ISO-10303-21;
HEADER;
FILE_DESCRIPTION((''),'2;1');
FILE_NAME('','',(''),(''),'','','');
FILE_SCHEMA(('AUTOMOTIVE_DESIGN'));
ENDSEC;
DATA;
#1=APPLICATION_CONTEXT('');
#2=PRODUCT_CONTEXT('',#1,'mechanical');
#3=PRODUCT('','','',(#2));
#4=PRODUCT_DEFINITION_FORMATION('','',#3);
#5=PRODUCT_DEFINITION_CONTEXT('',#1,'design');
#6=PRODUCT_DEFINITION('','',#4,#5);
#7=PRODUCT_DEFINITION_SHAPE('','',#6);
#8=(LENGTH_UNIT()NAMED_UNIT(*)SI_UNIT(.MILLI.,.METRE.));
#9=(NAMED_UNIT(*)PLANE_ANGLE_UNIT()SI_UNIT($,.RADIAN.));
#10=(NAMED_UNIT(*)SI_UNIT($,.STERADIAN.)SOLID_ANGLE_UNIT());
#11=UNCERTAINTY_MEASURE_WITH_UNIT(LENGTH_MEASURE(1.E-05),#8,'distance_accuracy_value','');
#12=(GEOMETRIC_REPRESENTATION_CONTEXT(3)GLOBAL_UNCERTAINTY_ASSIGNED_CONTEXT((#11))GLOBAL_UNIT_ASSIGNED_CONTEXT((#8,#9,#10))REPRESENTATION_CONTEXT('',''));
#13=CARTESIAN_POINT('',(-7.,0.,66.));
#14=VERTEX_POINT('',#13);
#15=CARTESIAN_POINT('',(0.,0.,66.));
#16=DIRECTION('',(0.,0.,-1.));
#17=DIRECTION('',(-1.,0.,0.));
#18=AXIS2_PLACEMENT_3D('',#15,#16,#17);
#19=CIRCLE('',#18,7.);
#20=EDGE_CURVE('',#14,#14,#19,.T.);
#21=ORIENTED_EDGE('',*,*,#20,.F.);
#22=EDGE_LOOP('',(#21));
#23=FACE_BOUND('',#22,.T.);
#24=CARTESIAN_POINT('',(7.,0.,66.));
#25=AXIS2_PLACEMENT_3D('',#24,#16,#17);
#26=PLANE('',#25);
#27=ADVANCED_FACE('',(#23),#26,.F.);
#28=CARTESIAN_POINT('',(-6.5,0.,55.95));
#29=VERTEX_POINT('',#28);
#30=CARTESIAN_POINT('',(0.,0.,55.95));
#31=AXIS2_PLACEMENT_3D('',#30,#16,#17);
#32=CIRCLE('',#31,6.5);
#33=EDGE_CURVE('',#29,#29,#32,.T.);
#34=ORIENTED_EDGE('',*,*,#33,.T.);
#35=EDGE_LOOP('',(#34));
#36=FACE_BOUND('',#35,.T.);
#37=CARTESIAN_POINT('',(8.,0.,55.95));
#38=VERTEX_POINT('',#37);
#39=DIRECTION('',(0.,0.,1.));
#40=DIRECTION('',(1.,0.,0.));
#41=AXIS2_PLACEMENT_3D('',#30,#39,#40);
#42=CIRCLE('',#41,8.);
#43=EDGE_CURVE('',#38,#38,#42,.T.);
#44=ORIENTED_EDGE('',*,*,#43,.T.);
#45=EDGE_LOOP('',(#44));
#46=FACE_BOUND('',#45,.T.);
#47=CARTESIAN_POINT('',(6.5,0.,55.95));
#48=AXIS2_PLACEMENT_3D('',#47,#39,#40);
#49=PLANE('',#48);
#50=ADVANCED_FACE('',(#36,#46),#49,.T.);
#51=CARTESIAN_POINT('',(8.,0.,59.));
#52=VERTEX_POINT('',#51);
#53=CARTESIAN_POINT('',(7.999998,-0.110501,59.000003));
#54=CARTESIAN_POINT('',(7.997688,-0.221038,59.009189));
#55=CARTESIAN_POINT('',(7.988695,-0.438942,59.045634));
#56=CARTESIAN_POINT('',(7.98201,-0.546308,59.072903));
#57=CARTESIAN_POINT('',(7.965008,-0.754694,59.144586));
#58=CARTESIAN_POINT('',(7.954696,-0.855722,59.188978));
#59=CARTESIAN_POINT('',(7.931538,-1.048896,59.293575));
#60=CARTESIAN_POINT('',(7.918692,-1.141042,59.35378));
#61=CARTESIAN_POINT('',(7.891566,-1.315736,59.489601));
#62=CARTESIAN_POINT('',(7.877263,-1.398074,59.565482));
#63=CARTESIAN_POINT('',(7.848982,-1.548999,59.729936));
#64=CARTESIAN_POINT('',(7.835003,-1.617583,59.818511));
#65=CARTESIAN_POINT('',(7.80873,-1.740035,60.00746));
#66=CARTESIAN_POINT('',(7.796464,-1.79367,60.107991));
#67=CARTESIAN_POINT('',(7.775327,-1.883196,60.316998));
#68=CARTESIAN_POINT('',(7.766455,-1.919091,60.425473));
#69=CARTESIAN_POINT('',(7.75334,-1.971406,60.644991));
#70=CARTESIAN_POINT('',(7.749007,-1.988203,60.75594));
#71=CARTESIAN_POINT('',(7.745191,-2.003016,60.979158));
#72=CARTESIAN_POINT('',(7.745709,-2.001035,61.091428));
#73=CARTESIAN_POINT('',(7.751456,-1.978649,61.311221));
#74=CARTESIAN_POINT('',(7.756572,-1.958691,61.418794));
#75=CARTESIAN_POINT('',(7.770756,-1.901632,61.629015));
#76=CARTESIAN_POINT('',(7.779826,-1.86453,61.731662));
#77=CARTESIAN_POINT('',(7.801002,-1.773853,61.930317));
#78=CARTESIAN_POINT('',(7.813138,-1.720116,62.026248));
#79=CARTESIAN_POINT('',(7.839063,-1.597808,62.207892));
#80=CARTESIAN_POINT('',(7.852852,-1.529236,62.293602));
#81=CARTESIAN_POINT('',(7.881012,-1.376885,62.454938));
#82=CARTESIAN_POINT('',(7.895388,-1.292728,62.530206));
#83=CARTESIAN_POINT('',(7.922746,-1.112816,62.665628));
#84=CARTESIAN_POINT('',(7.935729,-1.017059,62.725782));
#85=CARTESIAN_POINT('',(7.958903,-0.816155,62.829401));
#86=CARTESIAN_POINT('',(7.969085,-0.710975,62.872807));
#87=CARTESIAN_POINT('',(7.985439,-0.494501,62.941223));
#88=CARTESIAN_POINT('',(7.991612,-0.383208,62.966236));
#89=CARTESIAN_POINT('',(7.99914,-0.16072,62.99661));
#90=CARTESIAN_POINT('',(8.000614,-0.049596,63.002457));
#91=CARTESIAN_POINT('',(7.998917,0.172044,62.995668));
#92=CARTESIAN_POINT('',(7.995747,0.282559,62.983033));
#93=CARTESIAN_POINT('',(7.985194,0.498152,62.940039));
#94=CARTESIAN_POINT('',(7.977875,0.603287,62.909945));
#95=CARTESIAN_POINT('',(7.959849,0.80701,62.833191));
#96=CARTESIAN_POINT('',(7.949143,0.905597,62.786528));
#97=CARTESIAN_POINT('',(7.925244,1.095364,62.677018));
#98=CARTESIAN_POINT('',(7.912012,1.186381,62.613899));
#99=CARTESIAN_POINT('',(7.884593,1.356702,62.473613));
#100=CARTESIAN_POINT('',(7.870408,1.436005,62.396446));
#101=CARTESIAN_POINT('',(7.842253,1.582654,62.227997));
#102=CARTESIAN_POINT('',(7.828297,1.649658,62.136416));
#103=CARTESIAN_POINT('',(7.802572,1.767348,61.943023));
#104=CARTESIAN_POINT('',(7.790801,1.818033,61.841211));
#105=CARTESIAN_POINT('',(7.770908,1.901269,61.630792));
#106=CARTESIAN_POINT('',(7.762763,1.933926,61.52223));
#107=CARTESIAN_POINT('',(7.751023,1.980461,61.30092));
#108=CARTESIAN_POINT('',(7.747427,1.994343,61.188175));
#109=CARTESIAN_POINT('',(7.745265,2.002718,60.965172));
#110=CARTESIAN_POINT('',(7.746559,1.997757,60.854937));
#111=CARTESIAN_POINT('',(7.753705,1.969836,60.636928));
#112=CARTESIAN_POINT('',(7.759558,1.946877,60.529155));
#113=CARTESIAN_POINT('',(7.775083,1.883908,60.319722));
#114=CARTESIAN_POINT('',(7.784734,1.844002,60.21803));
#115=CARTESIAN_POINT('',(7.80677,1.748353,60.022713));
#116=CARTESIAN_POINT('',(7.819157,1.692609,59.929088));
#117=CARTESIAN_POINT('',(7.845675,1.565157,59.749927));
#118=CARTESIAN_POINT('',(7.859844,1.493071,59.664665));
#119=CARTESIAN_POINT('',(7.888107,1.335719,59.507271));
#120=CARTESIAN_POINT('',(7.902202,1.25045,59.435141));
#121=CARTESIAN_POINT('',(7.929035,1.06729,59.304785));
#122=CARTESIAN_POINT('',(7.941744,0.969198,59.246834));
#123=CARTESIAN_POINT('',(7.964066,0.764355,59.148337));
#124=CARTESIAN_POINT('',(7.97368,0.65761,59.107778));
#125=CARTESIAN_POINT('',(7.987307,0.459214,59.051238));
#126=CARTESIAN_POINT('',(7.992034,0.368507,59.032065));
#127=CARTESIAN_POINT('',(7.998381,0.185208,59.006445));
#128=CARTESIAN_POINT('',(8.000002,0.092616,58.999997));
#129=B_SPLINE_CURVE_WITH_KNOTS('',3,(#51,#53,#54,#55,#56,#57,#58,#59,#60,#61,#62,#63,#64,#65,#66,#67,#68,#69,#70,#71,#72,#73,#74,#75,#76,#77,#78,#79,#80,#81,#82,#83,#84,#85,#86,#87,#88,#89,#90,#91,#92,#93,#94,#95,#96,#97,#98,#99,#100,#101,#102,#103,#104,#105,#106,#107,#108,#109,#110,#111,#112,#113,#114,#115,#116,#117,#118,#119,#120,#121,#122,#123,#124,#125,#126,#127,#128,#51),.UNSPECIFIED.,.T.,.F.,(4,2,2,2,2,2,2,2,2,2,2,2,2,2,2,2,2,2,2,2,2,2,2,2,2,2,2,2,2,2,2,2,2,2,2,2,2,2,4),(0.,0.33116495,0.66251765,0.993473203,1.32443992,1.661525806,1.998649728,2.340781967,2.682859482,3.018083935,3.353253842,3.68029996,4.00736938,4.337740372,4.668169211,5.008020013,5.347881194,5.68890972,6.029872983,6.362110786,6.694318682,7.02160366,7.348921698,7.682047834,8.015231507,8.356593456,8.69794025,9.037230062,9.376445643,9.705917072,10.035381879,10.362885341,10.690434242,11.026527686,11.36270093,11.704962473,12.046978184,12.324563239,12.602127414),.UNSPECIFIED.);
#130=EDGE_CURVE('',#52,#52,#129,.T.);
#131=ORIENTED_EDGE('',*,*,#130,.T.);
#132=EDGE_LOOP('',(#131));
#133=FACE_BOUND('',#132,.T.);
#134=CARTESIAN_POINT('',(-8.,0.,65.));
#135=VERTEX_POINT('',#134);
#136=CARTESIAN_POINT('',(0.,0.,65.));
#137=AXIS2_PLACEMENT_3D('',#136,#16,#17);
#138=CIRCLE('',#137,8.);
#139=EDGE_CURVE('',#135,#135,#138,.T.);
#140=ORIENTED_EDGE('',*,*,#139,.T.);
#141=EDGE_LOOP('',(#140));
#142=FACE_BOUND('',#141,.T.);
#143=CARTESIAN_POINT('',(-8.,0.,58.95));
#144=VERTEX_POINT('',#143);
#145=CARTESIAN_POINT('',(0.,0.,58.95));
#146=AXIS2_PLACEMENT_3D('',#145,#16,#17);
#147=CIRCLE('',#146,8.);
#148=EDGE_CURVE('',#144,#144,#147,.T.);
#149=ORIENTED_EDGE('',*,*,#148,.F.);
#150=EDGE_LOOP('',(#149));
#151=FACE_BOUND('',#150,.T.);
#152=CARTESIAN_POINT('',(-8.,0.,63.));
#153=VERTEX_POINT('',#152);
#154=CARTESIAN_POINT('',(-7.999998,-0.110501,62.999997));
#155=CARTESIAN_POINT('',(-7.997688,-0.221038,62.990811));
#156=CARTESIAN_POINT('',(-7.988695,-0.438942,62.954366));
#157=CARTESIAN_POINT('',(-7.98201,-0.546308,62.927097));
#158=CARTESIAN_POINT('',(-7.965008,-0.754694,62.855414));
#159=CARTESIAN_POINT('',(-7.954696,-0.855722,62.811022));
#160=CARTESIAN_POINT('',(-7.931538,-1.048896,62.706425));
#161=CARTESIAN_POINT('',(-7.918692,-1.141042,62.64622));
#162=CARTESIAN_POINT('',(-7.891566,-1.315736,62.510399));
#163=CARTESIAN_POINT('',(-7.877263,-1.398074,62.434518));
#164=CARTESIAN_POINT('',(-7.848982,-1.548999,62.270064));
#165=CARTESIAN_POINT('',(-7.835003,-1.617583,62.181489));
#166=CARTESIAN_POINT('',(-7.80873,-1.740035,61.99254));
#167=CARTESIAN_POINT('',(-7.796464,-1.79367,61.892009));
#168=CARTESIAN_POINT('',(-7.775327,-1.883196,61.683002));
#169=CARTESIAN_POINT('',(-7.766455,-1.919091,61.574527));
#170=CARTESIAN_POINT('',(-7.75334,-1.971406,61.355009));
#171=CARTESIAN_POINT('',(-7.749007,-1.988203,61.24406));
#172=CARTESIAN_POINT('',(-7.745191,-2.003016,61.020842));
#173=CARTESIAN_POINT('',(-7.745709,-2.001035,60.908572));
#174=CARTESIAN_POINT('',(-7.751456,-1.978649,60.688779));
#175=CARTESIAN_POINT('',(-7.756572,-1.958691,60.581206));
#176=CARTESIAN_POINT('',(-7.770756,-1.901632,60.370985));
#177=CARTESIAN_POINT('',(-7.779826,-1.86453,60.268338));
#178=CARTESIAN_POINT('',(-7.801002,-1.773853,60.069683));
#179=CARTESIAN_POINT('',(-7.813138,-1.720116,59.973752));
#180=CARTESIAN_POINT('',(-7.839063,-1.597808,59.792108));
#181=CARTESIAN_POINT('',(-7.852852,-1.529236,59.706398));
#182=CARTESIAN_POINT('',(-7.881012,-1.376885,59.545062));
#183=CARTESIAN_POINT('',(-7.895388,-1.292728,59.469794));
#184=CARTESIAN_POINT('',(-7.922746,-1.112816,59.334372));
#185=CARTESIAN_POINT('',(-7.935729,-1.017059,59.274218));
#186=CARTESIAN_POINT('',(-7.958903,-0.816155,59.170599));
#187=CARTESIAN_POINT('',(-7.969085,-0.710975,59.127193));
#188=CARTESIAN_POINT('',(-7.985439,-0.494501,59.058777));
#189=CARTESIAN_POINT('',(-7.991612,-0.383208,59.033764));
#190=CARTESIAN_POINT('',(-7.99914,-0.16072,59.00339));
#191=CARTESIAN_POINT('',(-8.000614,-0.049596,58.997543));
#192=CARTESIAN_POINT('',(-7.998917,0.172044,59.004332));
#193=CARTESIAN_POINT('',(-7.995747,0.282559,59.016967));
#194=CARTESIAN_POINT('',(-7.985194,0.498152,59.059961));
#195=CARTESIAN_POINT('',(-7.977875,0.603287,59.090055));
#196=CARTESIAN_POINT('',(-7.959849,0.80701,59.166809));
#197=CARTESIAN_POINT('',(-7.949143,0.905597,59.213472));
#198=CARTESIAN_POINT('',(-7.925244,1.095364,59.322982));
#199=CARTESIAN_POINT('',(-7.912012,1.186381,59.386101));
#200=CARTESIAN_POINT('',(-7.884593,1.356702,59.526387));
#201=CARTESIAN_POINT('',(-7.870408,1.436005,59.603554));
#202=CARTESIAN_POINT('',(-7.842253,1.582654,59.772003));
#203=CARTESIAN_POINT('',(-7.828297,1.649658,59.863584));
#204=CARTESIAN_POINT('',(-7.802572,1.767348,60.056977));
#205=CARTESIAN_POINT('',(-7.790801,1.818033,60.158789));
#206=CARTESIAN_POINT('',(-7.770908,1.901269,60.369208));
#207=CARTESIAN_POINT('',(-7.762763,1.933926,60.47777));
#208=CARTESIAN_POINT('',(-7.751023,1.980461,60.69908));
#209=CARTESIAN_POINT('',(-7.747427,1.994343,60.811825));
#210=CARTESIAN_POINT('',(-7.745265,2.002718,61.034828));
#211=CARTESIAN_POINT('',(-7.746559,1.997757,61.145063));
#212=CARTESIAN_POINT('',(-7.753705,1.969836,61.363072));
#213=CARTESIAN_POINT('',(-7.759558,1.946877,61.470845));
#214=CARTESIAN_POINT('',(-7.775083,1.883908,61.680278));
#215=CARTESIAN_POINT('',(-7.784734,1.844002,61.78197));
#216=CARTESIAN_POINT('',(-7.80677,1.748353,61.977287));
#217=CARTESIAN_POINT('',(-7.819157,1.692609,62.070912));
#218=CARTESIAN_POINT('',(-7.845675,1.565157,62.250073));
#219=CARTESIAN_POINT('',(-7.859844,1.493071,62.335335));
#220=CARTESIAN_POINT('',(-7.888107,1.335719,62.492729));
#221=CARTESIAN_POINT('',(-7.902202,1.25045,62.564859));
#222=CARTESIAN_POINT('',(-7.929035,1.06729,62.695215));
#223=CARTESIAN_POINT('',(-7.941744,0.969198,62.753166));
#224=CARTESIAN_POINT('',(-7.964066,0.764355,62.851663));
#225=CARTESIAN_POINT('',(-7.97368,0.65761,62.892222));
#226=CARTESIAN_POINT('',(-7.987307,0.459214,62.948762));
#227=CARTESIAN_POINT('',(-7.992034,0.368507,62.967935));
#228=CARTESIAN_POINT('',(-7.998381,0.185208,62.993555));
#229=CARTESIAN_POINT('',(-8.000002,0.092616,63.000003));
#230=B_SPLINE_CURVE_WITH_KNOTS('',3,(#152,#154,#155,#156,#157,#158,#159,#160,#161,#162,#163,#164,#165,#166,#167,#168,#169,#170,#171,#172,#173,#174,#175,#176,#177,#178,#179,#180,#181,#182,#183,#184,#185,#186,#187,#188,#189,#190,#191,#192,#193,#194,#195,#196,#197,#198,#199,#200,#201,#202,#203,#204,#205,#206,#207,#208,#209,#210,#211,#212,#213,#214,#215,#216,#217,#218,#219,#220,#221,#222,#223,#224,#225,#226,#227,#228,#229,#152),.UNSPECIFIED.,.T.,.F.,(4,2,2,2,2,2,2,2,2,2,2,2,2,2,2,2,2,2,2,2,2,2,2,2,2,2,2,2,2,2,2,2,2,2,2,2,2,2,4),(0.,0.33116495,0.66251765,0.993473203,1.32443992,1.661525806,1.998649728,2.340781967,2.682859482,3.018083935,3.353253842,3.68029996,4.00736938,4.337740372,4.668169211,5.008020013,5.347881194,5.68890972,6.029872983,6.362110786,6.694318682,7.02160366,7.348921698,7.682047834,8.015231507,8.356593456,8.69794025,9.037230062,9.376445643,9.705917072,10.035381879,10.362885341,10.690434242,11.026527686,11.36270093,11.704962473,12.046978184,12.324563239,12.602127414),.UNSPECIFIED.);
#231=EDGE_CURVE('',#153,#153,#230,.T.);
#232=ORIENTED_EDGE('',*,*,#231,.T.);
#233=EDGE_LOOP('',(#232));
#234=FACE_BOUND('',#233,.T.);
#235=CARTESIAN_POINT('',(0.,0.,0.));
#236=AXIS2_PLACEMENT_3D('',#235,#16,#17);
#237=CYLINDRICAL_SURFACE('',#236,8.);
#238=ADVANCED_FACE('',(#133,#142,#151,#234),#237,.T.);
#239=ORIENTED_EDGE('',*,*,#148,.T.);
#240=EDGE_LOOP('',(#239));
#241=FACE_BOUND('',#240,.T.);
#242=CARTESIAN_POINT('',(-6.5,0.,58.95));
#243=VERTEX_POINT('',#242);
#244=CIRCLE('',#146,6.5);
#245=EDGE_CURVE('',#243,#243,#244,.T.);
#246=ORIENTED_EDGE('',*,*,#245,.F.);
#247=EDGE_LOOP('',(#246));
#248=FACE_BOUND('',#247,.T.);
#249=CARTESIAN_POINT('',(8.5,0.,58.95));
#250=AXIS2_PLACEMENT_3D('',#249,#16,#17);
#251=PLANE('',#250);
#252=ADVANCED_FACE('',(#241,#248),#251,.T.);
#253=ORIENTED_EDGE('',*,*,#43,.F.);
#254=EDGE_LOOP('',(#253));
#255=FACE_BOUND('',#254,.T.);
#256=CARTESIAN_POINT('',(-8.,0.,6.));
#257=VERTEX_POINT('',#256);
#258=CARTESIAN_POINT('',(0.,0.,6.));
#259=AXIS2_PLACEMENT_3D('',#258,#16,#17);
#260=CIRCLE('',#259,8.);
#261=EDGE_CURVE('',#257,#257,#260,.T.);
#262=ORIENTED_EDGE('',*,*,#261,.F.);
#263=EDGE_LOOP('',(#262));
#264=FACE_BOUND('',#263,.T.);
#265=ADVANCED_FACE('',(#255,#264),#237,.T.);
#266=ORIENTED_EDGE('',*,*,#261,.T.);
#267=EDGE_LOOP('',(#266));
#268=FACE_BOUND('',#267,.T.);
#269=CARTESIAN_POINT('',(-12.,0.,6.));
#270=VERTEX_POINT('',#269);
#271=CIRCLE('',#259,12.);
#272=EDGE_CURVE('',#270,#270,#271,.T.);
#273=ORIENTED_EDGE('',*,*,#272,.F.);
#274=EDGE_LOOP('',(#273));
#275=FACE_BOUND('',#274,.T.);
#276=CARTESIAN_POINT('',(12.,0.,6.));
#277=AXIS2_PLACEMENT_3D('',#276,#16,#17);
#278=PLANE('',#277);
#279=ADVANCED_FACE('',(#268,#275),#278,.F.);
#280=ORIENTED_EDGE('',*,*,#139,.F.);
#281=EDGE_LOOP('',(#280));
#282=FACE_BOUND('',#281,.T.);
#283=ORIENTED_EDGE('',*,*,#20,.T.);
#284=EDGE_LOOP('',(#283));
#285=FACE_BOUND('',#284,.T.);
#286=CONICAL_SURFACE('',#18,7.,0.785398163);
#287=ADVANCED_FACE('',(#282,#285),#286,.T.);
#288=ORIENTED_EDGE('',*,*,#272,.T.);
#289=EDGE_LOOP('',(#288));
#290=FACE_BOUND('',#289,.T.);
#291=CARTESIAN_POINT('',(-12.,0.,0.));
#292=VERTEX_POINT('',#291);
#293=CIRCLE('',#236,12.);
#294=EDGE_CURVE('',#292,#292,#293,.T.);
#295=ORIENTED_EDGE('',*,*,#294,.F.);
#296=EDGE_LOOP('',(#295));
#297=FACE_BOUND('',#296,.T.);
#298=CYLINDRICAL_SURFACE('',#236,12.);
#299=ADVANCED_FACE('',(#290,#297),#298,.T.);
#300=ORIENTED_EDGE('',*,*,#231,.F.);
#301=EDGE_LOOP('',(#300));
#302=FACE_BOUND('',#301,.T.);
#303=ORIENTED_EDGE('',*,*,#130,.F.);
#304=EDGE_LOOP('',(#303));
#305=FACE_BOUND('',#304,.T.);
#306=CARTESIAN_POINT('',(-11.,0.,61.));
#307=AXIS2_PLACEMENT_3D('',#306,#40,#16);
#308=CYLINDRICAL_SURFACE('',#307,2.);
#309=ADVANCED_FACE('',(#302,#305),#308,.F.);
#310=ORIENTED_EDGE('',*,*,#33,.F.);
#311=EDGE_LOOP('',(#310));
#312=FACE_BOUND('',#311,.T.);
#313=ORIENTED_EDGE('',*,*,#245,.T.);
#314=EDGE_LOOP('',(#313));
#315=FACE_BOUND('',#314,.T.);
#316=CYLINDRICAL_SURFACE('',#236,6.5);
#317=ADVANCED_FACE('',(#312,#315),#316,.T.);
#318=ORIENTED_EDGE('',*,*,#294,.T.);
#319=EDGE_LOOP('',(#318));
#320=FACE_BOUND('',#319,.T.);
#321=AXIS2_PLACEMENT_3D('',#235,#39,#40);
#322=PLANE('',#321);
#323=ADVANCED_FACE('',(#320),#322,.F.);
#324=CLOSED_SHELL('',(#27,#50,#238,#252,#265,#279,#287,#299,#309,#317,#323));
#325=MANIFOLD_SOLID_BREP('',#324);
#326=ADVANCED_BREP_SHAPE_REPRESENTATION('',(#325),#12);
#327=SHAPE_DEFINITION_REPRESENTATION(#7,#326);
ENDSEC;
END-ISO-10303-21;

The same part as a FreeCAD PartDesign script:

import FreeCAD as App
import Part
import Sketcher

V = App.Vector

doc = App.newDocument("Part")
body = doc.addObject("PartDesign::Body", "Body")

# Sketch on XZ plane
sketch1 = body.newObject("Sketcher::SketchObject", "Sketch")
sketch1.AttachmentSupport = (doc.getObject("XZ_Plane"), [""])
sketch1.MapMode = "FlatFace"
sketch1.addGeometry([
    Part.LineSegment(V(12, 0, 0), V(0, 0, 0)),  # 0
    Part.LineSegment(V(0, 0, 0), V(0, 66, 0)),  # 1
    Part.LineSegment(V(0, 66, 0), V(7, 66, 0)),  # 2
    Part.LineSegment(V(7, 66, 0), V(8, 65, 0)),  # 3
    Part.LineSegment(V(8, 65, 0), V(8, 6, 0)),  # 4
    Part.LineSegment(V(8, 6, 0), V(12, 6, 0)),  # 5
    Part.LineSegment(V(12, 6, 0), V(12, 0, 0)),  # 6
], False)
sketch1.addConstraint([
    Sketcher.Constraint("Coincident", 0, 2, 1, 1),
    Sketcher.Constraint("Coincident", 1, 2, 2, 1),
    Sketcher.Constraint("Coincident", 2, 2, 3, 1),
    Sketcher.Constraint("Coincident", 3, 2, 4, 1),
    Sketcher.Constraint("Coincident", 4, 2, 5, 1),
    Sketcher.Constraint("Coincident", 5, 2, 6, 1),
    Sketcher.Constraint("Coincident", 6, 2, 0, 1),
    Sketcher.Constraint("Horizontal", 0),
    Sketcher.Constraint("Vertical", 1),
    Sketcher.Constraint("Horizontal", 2),
    Sketcher.Constraint("Vertical", 4),
    Sketcher.Constraint("Horizontal", 5),
    Sketcher.Constraint("Vertical", 6),
    Sketcher.Constraint("Coincident", 0, 2, -1, 1),
    Sketcher.Constraint("DistanceX", 0, 2, 0, 1, 12.0),
    Sketcher.Constraint("DistanceX", 2, 1, 2, 2, 7.0),
    Sketcher.Constraint("DistanceX", 5, 1, 5, 2, 4.0),
    Sketcher.Constraint("DistanceY", 1, 1, 1, 2, 66.0),
    Sketcher.Constraint("DistanceY", 4, 2, 4, 1, 59.0),
    Sketcher.Constraint("DistanceY", 6, 2, 6, 1, 6.0),
])
revolution = body.newObject("PartDesign::Revolution", "Revolution")
revolution.Profile = sketch1
revolution.ReferenceAxis = (sketch1, ["V_Axis"])
revolution.Angle = 360

# Sketch on YZ plane
sketch2 = body.newObject("Sketcher::SketchObject", "Sketch001")
sketch2.AttachmentSupport = (doc.getObject("YZ_Plane"), [""])
sketch2.MapMode = "FlatFace"
sketch2.AttachmentOffset = App.Placement(V(0, 0, 9), App.Rotation())
sketch2.addGeometry(Part.Circle(V(0, 61, 0), V(0, 0, 1), 2), False)
sketch2.addConstraint([
    Sketcher.Constraint("PointOnObject", 0, 3, -2),
    Sketcher.Constraint("Diameter", 0, 4.0),
    Sketcher.Constraint("DistanceY", -1, 1, 0, 3, 61.0),
])
pocket1 = body.newObject("PartDesign::Pocket", "Pocket")
pocket1.Profile = sketch2
pocket1.Length = 20

# Sketch on XZ plane
sketch3 = body.newObject("Sketcher::SketchObject", "Sketch002")
sketch3.AttachmentSupport = (doc.getObject("XZ_Plane"), [""])
sketch3.MapMode = "FlatFace"
sketch3.addGeometry([
    Part.LineSegment(V(6.5, 55.95, 0), V(6.5, 58.95, 0)),
    Part.LineSegment(V(6.5, 58.95, 0), V(8.5, 58.95, 0)),
    Part.LineSegment(V(8.5, 58.95, 0), V(8.5, 55.95, 0)),
    Part.LineSegment(V(8.5, 55.95, 0), V(6.5, 55.95, 0)),
], False)
sketch3.addConstraint([
    Sketcher.Constraint("Coincident", 0, 2, 1, 1),
    Sketcher.Constraint("Coincident", 1, 2, 2, 1),
    Sketcher.Constraint("Coincident", 2, 2, 3, 1),
    Sketcher.Constraint("Coincident", 3, 2, 0, 1),
    Sketcher.Constraint("Vertical", 0),
    Sketcher.Constraint("Horizontal", 1),
    Sketcher.Constraint("Vertical", 2),
    Sketcher.Constraint("Horizontal", 3),
    Sketcher.Constraint("DistanceX", 1, 1, 1, 2, 2.0),
    Sketcher.Constraint("DistanceY", 0, 1, 0, 2, 3.0),
    Sketcher.Constraint("DistanceX", -1, 1, 0, 2, 6.5),
    Sketcher.Constraint("DistanceY", -1, 1, 0, 2, 58.95),
])
groove = body.newObject("PartDesign::Groove", "Groove")
groove.Profile = sketch3
groove.ReferenceAxis = (sketch3, ["V_Axis"])
groove.Angle = 360

doc.recompute()
